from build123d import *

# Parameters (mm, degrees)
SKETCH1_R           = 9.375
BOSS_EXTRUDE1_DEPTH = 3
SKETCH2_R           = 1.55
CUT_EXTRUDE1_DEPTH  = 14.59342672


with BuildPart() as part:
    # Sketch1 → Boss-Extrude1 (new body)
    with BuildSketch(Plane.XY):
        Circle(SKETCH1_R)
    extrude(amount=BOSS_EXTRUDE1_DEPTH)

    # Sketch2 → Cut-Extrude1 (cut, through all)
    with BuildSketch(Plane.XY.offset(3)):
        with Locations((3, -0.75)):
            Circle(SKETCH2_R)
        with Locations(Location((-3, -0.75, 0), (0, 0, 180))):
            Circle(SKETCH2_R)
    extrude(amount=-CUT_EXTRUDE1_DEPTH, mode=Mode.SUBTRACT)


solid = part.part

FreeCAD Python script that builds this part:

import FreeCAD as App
import Part
import Sketcher

V = App.Vector
Q = App.Units.Quantity

doc = App.newDocument("Part")
params = doc.addObject("Spreadsheet::Sheet", "Params")
for row, (alias, value) in enumerate([
    ("sketch1_diameter", "18.75 mm"),
    ("pad1_length", "3 mm"),
    ("sketch2_diameter", "3.1 mm"),
], start=1):
    params.set(f"A{row}", alias)
    params.set(f"B{row}", "=" + value)
    params.setAlias(f"B{row}", alias)

body = doc.addObject("PartDesign::Body", "Body")

# Sketch on XY plane
sketch1 = doc.addObject("Sketcher::SketchObject", "Sketch")
body.addObject(sketch1)
sketch1.AttachmentSupport = (doc.XY_Plane, [""])
sketch1.MapMode = "FlatFace"
sketch1.addGeometry(Part.Circle(V(0, 0, 0), V(0, 0, 1), 9), False)
sketch1.addConstraint(Sketcher.Constraint("Coincident", 0, 3, -1, 1))
sketch1.addConstraint(Sketcher.Constraint("Diameter", 0, Q("18.75 mm")))
sketch1.setExpression("Constraints[1]", "Params.sketch1_diameter")
pad1 = doc.addObject("PartDesign::Pad", "Pad")
body.addObject(pad1)
pad1.Profile = sketch1
pad1.setExpression("Length", "Params.pad1_length")

# Sketch on XY plane
sketch2 = doc.addObject("Sketcher::SketchObject", "Sketch001")
body.addObject(sketch2)
sketch2.AttachmentSupport = (doc.XY_Plane, [""])
sketch2.MapMode = "FlatFace"
sketch2.AttachmentOffset = App.Placement(V(0, 0, 3), App.Rotation())
sketch2.addGeometry(Part.Circle(V(3, -0.8, 0), V(0, 0, 1), 1.6), False)
sketch2.addGeometry(Part.Circle(V(-3, -0.8, 0), V(0, 0, 1), 1.6), False)
sketch2.addConstraint(Sketcher.Constraint("Equal", 0, 1))
sketch2.addConstraint(Sketcher.Constraint("Symmetric", 0, 3, 1, 3, -2))
sketch2.addConstraint(Sketcher.Constraint("Diameter", 0, Q("3.1 mm")))
sketch2.addConstraint(Sketcher.Constraint("DistanceX", -1, 1, 0, 3, Q("3 mm")))
sketch2.addConstraint(Sketcher.Constraint("DistanceY", 0, 3, -1, 1, Q("0.75 mm")))
sketch2.setExpression("Constraints[2]", "Params.sketch2_diameter")
pocket1 = doc.addObject("PartDesign::Pocket", "Pocket")
body.addObject(pocket1)
pocket1.Profile = sketch2
pocket1.Type = "ThroughAll"

doc.recompute()
